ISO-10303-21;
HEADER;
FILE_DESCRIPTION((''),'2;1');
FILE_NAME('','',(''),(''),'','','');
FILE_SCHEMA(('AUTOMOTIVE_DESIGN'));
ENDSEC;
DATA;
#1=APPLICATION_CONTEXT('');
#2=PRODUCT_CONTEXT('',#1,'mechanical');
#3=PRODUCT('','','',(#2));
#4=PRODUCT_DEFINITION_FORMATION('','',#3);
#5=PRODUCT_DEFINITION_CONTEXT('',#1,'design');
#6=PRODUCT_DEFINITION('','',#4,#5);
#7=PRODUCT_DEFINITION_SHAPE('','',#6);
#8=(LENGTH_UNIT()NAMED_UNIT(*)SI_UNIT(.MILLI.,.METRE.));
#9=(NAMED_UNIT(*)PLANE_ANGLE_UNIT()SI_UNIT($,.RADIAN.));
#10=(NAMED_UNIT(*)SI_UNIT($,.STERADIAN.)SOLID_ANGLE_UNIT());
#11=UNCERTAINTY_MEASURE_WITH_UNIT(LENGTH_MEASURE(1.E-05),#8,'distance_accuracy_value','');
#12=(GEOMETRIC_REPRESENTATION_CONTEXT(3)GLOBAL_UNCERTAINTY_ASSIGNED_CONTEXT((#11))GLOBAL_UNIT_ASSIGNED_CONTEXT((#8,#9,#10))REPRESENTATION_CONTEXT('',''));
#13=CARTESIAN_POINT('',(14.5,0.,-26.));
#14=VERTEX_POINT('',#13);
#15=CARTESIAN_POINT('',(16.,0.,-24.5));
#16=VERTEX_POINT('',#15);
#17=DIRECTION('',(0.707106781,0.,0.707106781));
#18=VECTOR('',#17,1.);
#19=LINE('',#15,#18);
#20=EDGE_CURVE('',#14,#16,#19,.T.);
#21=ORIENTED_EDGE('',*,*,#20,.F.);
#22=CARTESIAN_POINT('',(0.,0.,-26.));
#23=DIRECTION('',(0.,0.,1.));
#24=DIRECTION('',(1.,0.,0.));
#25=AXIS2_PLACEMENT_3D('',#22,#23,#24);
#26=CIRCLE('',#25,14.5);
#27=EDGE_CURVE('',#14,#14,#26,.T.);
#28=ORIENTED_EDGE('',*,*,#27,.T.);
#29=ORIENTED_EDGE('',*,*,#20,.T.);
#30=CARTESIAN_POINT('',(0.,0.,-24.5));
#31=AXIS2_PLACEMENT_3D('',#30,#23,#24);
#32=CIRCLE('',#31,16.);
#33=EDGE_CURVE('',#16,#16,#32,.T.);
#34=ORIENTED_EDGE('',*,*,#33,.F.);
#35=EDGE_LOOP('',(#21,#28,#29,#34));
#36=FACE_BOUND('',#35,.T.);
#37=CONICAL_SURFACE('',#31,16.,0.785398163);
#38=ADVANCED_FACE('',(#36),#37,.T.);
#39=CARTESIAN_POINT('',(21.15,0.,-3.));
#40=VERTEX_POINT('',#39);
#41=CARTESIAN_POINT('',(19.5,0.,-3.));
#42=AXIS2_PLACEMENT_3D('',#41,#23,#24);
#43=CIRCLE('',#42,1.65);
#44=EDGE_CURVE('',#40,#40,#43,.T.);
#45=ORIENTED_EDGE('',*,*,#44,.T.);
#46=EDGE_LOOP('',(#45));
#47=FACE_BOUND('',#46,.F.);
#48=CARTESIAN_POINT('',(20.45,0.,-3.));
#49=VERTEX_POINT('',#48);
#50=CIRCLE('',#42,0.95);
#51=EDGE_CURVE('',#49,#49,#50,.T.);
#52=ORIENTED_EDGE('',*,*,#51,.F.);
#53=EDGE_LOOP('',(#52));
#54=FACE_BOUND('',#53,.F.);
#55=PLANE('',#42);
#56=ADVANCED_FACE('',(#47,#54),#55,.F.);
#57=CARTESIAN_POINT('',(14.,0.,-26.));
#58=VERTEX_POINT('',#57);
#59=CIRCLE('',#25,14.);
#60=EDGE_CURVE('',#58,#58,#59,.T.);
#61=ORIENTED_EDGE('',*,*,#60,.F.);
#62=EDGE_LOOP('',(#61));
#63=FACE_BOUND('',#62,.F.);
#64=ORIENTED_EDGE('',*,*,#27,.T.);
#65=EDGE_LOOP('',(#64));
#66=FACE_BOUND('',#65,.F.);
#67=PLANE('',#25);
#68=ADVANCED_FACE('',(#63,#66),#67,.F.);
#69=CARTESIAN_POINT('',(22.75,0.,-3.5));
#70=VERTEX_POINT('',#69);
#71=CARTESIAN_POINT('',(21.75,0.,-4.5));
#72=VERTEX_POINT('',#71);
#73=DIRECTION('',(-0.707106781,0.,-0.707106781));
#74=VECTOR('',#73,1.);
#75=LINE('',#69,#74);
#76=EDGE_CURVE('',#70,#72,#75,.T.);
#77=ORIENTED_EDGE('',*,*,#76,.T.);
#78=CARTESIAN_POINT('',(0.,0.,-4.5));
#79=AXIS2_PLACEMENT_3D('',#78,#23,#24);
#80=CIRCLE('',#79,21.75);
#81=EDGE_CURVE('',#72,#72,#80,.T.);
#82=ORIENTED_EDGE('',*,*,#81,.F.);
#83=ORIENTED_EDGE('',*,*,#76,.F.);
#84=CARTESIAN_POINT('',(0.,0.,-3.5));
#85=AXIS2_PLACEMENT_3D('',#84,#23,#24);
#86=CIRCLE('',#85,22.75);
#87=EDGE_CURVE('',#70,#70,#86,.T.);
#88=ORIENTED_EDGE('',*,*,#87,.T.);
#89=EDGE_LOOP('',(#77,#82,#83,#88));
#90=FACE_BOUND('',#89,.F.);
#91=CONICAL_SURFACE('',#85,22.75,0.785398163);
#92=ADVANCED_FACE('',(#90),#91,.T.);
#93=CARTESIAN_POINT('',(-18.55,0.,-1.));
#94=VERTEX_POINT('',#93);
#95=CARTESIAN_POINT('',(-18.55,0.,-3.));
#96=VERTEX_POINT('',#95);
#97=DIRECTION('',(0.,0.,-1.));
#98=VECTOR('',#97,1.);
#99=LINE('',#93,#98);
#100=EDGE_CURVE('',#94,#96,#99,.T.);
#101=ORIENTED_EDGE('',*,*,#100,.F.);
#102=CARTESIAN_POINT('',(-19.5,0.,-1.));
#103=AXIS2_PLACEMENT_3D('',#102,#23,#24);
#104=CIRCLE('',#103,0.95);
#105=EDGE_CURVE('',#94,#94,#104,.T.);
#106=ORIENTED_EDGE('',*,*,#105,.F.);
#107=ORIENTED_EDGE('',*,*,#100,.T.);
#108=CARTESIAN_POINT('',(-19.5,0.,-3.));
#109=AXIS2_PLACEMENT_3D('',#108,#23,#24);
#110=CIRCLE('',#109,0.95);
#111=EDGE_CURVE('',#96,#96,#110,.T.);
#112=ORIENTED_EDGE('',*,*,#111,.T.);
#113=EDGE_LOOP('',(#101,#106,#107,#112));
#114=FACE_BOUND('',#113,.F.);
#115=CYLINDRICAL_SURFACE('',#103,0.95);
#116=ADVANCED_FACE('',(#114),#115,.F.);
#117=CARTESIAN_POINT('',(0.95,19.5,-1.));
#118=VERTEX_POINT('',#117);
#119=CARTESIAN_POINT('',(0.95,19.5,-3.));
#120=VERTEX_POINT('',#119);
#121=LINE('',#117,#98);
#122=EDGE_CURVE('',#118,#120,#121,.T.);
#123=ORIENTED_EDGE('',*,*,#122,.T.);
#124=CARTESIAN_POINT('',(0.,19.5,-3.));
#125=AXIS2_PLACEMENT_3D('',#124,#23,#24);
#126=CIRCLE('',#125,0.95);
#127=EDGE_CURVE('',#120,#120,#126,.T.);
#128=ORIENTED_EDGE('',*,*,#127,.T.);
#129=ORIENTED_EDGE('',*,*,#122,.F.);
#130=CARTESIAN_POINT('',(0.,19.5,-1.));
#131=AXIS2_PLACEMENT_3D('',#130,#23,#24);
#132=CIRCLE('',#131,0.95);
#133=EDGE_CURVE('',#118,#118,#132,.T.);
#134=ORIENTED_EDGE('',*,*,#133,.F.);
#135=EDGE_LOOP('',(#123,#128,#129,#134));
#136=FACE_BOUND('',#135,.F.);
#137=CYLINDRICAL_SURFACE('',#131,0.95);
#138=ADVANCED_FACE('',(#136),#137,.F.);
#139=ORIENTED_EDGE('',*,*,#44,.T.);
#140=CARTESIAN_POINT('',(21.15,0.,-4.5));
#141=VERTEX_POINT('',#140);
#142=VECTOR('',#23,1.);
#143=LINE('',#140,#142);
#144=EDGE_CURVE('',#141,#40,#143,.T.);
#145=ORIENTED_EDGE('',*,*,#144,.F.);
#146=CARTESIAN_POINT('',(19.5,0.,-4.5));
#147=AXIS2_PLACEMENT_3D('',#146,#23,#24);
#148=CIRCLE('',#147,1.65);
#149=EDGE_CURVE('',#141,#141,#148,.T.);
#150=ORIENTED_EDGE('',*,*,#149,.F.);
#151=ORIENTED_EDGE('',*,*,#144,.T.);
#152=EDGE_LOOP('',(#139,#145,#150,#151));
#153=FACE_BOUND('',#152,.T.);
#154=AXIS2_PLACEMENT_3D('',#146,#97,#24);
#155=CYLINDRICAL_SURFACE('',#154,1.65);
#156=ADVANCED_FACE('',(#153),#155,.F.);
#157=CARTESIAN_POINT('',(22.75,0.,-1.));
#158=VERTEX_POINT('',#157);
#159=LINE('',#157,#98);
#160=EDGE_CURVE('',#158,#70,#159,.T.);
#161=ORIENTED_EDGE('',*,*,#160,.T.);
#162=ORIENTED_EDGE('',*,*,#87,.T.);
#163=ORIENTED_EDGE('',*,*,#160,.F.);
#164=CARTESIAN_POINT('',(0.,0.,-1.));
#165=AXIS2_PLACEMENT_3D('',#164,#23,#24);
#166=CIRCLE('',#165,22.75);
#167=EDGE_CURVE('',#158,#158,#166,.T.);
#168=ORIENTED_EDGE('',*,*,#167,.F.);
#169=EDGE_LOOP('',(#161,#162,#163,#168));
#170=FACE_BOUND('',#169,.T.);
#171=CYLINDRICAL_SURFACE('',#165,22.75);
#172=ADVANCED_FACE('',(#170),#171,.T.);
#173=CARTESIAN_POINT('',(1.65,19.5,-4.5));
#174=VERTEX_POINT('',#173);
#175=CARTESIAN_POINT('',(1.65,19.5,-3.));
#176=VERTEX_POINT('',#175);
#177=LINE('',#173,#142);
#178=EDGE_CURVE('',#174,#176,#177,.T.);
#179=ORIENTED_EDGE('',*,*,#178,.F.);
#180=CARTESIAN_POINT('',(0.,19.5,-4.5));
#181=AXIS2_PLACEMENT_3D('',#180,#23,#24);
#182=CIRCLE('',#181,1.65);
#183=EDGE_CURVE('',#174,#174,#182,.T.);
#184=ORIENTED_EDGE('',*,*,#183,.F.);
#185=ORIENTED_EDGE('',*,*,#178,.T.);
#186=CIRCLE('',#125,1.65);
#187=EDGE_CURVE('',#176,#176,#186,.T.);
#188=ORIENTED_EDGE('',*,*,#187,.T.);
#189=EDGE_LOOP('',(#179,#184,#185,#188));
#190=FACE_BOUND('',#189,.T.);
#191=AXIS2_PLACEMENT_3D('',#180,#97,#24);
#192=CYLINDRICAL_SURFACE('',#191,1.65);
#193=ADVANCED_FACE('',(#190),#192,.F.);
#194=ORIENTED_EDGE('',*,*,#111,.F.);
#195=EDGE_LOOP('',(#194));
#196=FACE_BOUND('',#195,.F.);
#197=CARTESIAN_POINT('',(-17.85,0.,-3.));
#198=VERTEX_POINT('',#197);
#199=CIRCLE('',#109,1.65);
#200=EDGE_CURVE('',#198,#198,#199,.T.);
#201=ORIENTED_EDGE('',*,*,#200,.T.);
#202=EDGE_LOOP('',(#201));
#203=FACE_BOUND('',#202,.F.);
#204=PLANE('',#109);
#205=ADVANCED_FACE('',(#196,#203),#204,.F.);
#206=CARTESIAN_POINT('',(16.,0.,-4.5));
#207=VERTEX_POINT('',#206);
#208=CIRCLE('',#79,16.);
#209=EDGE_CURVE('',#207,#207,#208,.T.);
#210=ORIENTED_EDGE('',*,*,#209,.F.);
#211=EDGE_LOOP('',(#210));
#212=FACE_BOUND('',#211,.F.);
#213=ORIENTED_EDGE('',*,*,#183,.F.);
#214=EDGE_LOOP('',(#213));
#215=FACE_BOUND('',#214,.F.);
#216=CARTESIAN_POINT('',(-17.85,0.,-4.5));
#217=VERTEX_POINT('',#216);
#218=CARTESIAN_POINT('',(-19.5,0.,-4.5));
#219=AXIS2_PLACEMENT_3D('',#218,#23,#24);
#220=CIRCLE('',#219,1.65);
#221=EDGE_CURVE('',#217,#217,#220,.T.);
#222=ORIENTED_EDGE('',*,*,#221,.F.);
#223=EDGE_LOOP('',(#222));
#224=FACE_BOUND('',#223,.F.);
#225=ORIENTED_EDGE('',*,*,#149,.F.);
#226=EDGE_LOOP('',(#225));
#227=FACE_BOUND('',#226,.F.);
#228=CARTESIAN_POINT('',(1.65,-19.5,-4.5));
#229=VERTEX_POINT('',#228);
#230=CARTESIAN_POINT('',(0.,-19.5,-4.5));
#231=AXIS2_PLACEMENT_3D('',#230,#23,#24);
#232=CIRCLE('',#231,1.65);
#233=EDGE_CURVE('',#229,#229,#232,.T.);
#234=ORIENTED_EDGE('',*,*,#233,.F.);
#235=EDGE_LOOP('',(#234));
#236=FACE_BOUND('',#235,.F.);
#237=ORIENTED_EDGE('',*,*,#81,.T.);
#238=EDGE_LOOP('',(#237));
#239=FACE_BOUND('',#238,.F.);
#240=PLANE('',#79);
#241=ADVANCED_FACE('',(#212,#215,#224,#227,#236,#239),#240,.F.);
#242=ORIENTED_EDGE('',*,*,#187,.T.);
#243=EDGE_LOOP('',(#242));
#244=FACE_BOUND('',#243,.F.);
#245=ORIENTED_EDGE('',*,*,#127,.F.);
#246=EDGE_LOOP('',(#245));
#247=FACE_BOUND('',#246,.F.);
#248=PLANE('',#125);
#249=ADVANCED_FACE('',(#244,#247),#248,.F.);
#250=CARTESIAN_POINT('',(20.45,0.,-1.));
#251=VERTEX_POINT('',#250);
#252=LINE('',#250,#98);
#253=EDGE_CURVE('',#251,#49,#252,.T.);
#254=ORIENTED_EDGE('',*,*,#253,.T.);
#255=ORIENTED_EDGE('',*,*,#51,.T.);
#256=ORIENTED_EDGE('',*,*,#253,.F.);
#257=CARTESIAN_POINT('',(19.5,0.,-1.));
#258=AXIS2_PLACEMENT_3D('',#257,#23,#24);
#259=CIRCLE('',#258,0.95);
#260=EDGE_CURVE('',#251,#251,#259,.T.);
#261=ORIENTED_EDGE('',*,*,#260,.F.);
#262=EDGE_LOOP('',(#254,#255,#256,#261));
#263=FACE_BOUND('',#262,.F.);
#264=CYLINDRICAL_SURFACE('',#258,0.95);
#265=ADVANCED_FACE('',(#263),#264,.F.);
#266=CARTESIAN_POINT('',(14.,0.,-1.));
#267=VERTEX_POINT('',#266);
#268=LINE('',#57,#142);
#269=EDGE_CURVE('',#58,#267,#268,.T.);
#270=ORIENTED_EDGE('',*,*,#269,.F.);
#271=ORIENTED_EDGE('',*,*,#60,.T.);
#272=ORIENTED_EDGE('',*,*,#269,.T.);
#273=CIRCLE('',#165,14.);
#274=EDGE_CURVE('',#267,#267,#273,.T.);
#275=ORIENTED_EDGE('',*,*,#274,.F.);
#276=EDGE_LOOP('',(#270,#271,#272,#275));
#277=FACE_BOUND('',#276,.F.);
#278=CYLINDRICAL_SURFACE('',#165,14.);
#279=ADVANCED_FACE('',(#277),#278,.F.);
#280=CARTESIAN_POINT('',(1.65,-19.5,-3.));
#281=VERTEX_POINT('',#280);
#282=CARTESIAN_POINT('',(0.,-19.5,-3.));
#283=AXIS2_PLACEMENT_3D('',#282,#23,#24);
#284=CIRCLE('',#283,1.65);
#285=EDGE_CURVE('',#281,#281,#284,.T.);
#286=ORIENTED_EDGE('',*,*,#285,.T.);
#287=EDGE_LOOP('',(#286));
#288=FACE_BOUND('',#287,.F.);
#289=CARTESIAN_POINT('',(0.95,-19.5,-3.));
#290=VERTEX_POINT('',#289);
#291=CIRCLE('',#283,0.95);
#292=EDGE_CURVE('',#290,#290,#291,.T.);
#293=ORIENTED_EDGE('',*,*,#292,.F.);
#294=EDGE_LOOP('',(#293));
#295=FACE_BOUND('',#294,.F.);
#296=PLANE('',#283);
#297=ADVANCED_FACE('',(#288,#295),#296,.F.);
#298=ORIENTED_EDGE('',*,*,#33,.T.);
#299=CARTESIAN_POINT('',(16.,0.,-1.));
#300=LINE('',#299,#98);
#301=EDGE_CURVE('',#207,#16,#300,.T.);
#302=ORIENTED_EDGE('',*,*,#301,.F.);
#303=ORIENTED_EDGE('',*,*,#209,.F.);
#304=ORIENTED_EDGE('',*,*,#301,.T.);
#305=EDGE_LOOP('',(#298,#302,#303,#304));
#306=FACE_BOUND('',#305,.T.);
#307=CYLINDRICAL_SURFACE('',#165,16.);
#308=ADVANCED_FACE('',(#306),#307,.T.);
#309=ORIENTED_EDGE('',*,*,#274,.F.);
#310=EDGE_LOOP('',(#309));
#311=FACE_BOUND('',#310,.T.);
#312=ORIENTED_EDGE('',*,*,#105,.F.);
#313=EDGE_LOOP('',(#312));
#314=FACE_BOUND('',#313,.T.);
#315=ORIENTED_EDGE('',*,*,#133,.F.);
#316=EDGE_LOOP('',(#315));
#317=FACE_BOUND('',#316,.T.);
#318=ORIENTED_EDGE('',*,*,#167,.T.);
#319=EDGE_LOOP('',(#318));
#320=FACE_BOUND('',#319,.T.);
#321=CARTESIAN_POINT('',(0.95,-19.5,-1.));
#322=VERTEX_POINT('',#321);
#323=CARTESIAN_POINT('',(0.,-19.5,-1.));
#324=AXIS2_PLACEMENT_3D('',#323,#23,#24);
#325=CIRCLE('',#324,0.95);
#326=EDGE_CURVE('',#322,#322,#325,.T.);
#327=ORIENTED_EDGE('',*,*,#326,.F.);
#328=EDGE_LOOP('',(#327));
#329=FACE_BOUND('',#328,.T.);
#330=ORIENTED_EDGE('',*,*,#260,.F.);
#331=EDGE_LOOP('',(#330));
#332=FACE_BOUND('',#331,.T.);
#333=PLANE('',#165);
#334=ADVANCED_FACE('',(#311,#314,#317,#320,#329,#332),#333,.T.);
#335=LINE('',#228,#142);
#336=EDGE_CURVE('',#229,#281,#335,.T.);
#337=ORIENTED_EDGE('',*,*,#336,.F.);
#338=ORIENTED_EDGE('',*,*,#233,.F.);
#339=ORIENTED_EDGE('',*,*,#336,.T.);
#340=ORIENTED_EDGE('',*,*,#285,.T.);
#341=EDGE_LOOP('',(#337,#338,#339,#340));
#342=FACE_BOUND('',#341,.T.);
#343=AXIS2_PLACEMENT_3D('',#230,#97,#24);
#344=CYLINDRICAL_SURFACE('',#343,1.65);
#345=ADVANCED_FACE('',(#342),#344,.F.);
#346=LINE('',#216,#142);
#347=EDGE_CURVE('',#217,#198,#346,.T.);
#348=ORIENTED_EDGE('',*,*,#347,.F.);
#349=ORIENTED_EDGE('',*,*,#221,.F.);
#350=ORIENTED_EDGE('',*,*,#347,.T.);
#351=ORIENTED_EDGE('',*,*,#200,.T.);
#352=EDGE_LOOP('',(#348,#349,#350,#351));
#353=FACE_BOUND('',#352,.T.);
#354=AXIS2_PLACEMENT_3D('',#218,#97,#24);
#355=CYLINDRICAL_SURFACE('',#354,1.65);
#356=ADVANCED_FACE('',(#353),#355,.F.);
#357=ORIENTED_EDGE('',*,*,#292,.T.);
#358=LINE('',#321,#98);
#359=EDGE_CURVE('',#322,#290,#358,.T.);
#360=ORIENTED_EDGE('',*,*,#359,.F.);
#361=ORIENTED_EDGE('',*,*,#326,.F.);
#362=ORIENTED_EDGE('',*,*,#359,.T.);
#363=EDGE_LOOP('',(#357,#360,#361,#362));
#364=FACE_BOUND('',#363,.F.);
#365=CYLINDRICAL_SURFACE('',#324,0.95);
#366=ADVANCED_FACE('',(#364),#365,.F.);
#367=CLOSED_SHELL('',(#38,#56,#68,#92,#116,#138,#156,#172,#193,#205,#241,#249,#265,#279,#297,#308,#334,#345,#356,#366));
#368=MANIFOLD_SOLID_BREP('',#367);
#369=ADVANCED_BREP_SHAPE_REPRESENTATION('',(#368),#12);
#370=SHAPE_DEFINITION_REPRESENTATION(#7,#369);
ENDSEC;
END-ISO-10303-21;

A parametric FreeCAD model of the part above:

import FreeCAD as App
import Part
import Sketcher


def edges_at(feature, points):
    """Names of the edges that pass closest to the given points."""
    edges = feature.Shape.Edges
    near = lambda p: min(range(len(edges)), key=lambda i: edges[i].distToShape(Part.Vertex(*p))[0])
    return sorted({f"Edge{near(p) + 1}" for p in points})

doc = App.newDocument("Part")
body = doc.addObject("PartDesign::Body", "Body")

sketch1 = body.newObject("Sketcher::SketchObject", "Sketch")
sketch1.AttachmentSupport = (doc.getObject("XY_Plane"), [""])
sketch1.MapMode = "FlatFace"
sketch1.addGeometry(Part.Circle(App.Vector(0, 0, 0), App.Vector(0, 0, 1), 23), False)
sketch1.addGeometry(Part.Circle(App.Vector(0, 0, 0), App.Vector(0, 0, 1), 14), False)
sketch1.addConstraint(Sketcher.Constraint("Coincident", 0, 3, -1, 1))
sketch1.addConstraint(Sketcher.Constraint("Coincident", 1, 3, -1, 1))
sketch1.addConstraint(Sketcher.Constraint("Diameter", 1, 28.0))
sketch1.addConstraint(Sketcher.Constraint("Diameter", 0, 45.5))
pad1 = body.newObject("PartDesign::Pad", "Pad")
pad1.Profile = sketch1
pad1.Length = 3.5
pad1.Reversed = True
doc.recompute()

chamfer = body.newObject("PartDesign::Chamfer", "Chamfer")
chamfer.Base = (pad1, edges_at(pad1, [(-22.75, 0, -3.5)]))
chamfer.Size = 1

sketch2 = body.newObject("Sketcher::SketchObject", "Sketch001")
sketch2.AttachmentSupport = (doc.getObject("XY_Plane"), [""])
sketch2.MapMode = "FlatFace"
sketch2.addGeometry(Part.Circle(App.Vector(0, 0, 0), App.Vector(0, 0, 1), 16), False)
sketch2.addGeometry(Part.Circle(App.Vector(0, 0, 0), App.Vector(0, 0, 1), 14), False)
sketch2.addConstraint(Sketcher.Constraint("Coincident", 0, 3, -1, 1))
sketch2.addConstraint(Sketcher.Constraint("Coincident", 1, 3, -1, 1))
sketch2.addConstraint(Sketcher.Constraint("Diameter", 0, 32.0))
sketch2.addConstraint(Sketcher.Constraint("Diameter", 1, 28.0))
pad2 = body.newObject("PartDesign::Pad", "Pad001")
pad2.Profile = sketch2
pad2.Length = 25
pad2.Reversed = True

sketch3 = body.newObject("Sketcher::SketchObject", "Sketch002")
sketch3.AttachmentSupport = (doc.getObject("XY_Plane"), [""])
sketch3.MapMode = "FlatFace"
sketch3.addGeometry(Part.Circle(App.Vector(-19.5, 0, 0), App.Vector(0, 0, 1), 0.9), False)
sketch3.addGeometry(Part.Circle(App.Vector(0, -19.5, 0), App.Vector(0, 0, 1), 0.9), False)
sketch3.addGeometry(Part.Circle(App.Vector(19.5, 0, 0), App.Vector(0, 0, 1), 0.9), False)
sketch3.addGeometry(Part.Circle(App.Vector(0, 19.5, 0), App.Vector(0, 0, 1), 0.9), False)
sketch3.addConstraint(Sketcher.Constraint("Equal", 0, 1))
sketch3.addConstraint(Sketcher.Constraint("Equal", 1, 2))
sketch3.addConstraint(Sketcher.Constraint("Equal", 2, 3))
sketch3.addConstraint(Sketcher.Constraint("Symmetric", 0, 3, 2, 3, -1, 1))
sketch3.addConstraint(Sketcher.Constraint("Symmetric", 1, 3, 3, 3, -1, 1))
sketch3.addConstraint(Sketcher.Constraint("PointOnObject", 0, 3, -1))
sketch3.addConstraint(Sketcher.Constraint("PointOnObject", 1, 3, -2))
sketch3.addConstraint(Sketcher.Constraint("Diameter", 0, 1.9))
sketch3.addConstraint(Sketcher.Constraint("DistanceX", 0, 3, 2, 3, 39.0))
sketch3.addConstraint(Sketcher.Constraint("DistanceY", 1, 3, 3, 3, 39.0))
pocket1 = body.newObject("PartDesign::Pocket", "Pocket")
pocket1.Profile = sketch3
pocket1.Length = 3

sketch4 = body.newObject("Sketcher::SketchObject", "Sketch003")
sketch4.AttachmentSupport = (doc.getObject("XY_Plane"), [""])
sketch4.MapMode = "FlatFace"
sketch4.AttachmentOffset = App.Placement(App.Vector(0, 0, -3.5), App.Rotation())
sketch4.addGeometry(Part.Circle(App.Vector(-19.5, 0, 0), App.Vector(0, 0, 1), 1.6), False)
sketch4.addGeometry(Part.Circle(App.Vector(0, -19.5, 0), App.Vector(0, 0, 1), 1.6), False)
sketch4.addGeometry(Part.Circle(App.Vector(19.5, 0, 0), App.Vector(0, 0, 1), 1.6), False)
sketch4.addGeometry(Part.Circle(App.Vector(0, 19.5, 0), App.Vector(0, 0, 1), 1.6), False)
sketch4.addConstraint(Sketcher.Constraint("Equal", 0, 1))
sketch4.addConstraint(Sketcher.Constraint("Equal", 1, 2))
sketch4.addConstraint(Sketcher.Constraint("Equal", 2, 3))
sketch4.addConstraint(Sketcher.Constraint("Symmetric", 0, 3, 2, 3, -1, 1))
sketch4.addConstraint(Sketcher.Constraint("Symmetric", 1, 3, 3, 3, -1, 1))
sketch4.addConstraint(Sketcher.Constraint("PointOnObject", 0, 3, -1))
sketch4.addConstraint(Sketcher.Constraint("PointOnObject", 1, 3, -2))
sketch4.addConstraint(Sketcher.Constraint("Diameter", 0, 3.3))
sketch4.addConstraint(Sketcher.Constraint("DistanceX", 0, 3, 2, 3, 39.0))
sketch4.addConstraint(Sketcher.Constraint("DistanceY", 1, 3, 3, 3, 39.0))
pocket2 = body.newObject("PartDesign::Pocket", "Pocket001")
pocket2.Profile = sketch4
pocket2.Length = 1.5
pocket2.Reversed = True
doc.recompute()

chamfer2 = body.newObject("PartDesign::Chamfer", "Chamfer001")
chamfer2.Base = (pocket2, edges_at(pocket2, [(-16, 0, -25)]))
chamfer2.Size = 1.5
body2 = doc.addObject("PartDesign::Body", "Body001")
doc.recompute()

body.Placement = App.Placement(App.Vector(0, 0, -1), App.Rotation(App.Vector(0, 0, 1), 0))
boolean = body2.newObject("PartDesign::Boolean", "Boolean")
boolean.Type = "Fuse"
boolean.addObjects([body])

doc.recompute()
